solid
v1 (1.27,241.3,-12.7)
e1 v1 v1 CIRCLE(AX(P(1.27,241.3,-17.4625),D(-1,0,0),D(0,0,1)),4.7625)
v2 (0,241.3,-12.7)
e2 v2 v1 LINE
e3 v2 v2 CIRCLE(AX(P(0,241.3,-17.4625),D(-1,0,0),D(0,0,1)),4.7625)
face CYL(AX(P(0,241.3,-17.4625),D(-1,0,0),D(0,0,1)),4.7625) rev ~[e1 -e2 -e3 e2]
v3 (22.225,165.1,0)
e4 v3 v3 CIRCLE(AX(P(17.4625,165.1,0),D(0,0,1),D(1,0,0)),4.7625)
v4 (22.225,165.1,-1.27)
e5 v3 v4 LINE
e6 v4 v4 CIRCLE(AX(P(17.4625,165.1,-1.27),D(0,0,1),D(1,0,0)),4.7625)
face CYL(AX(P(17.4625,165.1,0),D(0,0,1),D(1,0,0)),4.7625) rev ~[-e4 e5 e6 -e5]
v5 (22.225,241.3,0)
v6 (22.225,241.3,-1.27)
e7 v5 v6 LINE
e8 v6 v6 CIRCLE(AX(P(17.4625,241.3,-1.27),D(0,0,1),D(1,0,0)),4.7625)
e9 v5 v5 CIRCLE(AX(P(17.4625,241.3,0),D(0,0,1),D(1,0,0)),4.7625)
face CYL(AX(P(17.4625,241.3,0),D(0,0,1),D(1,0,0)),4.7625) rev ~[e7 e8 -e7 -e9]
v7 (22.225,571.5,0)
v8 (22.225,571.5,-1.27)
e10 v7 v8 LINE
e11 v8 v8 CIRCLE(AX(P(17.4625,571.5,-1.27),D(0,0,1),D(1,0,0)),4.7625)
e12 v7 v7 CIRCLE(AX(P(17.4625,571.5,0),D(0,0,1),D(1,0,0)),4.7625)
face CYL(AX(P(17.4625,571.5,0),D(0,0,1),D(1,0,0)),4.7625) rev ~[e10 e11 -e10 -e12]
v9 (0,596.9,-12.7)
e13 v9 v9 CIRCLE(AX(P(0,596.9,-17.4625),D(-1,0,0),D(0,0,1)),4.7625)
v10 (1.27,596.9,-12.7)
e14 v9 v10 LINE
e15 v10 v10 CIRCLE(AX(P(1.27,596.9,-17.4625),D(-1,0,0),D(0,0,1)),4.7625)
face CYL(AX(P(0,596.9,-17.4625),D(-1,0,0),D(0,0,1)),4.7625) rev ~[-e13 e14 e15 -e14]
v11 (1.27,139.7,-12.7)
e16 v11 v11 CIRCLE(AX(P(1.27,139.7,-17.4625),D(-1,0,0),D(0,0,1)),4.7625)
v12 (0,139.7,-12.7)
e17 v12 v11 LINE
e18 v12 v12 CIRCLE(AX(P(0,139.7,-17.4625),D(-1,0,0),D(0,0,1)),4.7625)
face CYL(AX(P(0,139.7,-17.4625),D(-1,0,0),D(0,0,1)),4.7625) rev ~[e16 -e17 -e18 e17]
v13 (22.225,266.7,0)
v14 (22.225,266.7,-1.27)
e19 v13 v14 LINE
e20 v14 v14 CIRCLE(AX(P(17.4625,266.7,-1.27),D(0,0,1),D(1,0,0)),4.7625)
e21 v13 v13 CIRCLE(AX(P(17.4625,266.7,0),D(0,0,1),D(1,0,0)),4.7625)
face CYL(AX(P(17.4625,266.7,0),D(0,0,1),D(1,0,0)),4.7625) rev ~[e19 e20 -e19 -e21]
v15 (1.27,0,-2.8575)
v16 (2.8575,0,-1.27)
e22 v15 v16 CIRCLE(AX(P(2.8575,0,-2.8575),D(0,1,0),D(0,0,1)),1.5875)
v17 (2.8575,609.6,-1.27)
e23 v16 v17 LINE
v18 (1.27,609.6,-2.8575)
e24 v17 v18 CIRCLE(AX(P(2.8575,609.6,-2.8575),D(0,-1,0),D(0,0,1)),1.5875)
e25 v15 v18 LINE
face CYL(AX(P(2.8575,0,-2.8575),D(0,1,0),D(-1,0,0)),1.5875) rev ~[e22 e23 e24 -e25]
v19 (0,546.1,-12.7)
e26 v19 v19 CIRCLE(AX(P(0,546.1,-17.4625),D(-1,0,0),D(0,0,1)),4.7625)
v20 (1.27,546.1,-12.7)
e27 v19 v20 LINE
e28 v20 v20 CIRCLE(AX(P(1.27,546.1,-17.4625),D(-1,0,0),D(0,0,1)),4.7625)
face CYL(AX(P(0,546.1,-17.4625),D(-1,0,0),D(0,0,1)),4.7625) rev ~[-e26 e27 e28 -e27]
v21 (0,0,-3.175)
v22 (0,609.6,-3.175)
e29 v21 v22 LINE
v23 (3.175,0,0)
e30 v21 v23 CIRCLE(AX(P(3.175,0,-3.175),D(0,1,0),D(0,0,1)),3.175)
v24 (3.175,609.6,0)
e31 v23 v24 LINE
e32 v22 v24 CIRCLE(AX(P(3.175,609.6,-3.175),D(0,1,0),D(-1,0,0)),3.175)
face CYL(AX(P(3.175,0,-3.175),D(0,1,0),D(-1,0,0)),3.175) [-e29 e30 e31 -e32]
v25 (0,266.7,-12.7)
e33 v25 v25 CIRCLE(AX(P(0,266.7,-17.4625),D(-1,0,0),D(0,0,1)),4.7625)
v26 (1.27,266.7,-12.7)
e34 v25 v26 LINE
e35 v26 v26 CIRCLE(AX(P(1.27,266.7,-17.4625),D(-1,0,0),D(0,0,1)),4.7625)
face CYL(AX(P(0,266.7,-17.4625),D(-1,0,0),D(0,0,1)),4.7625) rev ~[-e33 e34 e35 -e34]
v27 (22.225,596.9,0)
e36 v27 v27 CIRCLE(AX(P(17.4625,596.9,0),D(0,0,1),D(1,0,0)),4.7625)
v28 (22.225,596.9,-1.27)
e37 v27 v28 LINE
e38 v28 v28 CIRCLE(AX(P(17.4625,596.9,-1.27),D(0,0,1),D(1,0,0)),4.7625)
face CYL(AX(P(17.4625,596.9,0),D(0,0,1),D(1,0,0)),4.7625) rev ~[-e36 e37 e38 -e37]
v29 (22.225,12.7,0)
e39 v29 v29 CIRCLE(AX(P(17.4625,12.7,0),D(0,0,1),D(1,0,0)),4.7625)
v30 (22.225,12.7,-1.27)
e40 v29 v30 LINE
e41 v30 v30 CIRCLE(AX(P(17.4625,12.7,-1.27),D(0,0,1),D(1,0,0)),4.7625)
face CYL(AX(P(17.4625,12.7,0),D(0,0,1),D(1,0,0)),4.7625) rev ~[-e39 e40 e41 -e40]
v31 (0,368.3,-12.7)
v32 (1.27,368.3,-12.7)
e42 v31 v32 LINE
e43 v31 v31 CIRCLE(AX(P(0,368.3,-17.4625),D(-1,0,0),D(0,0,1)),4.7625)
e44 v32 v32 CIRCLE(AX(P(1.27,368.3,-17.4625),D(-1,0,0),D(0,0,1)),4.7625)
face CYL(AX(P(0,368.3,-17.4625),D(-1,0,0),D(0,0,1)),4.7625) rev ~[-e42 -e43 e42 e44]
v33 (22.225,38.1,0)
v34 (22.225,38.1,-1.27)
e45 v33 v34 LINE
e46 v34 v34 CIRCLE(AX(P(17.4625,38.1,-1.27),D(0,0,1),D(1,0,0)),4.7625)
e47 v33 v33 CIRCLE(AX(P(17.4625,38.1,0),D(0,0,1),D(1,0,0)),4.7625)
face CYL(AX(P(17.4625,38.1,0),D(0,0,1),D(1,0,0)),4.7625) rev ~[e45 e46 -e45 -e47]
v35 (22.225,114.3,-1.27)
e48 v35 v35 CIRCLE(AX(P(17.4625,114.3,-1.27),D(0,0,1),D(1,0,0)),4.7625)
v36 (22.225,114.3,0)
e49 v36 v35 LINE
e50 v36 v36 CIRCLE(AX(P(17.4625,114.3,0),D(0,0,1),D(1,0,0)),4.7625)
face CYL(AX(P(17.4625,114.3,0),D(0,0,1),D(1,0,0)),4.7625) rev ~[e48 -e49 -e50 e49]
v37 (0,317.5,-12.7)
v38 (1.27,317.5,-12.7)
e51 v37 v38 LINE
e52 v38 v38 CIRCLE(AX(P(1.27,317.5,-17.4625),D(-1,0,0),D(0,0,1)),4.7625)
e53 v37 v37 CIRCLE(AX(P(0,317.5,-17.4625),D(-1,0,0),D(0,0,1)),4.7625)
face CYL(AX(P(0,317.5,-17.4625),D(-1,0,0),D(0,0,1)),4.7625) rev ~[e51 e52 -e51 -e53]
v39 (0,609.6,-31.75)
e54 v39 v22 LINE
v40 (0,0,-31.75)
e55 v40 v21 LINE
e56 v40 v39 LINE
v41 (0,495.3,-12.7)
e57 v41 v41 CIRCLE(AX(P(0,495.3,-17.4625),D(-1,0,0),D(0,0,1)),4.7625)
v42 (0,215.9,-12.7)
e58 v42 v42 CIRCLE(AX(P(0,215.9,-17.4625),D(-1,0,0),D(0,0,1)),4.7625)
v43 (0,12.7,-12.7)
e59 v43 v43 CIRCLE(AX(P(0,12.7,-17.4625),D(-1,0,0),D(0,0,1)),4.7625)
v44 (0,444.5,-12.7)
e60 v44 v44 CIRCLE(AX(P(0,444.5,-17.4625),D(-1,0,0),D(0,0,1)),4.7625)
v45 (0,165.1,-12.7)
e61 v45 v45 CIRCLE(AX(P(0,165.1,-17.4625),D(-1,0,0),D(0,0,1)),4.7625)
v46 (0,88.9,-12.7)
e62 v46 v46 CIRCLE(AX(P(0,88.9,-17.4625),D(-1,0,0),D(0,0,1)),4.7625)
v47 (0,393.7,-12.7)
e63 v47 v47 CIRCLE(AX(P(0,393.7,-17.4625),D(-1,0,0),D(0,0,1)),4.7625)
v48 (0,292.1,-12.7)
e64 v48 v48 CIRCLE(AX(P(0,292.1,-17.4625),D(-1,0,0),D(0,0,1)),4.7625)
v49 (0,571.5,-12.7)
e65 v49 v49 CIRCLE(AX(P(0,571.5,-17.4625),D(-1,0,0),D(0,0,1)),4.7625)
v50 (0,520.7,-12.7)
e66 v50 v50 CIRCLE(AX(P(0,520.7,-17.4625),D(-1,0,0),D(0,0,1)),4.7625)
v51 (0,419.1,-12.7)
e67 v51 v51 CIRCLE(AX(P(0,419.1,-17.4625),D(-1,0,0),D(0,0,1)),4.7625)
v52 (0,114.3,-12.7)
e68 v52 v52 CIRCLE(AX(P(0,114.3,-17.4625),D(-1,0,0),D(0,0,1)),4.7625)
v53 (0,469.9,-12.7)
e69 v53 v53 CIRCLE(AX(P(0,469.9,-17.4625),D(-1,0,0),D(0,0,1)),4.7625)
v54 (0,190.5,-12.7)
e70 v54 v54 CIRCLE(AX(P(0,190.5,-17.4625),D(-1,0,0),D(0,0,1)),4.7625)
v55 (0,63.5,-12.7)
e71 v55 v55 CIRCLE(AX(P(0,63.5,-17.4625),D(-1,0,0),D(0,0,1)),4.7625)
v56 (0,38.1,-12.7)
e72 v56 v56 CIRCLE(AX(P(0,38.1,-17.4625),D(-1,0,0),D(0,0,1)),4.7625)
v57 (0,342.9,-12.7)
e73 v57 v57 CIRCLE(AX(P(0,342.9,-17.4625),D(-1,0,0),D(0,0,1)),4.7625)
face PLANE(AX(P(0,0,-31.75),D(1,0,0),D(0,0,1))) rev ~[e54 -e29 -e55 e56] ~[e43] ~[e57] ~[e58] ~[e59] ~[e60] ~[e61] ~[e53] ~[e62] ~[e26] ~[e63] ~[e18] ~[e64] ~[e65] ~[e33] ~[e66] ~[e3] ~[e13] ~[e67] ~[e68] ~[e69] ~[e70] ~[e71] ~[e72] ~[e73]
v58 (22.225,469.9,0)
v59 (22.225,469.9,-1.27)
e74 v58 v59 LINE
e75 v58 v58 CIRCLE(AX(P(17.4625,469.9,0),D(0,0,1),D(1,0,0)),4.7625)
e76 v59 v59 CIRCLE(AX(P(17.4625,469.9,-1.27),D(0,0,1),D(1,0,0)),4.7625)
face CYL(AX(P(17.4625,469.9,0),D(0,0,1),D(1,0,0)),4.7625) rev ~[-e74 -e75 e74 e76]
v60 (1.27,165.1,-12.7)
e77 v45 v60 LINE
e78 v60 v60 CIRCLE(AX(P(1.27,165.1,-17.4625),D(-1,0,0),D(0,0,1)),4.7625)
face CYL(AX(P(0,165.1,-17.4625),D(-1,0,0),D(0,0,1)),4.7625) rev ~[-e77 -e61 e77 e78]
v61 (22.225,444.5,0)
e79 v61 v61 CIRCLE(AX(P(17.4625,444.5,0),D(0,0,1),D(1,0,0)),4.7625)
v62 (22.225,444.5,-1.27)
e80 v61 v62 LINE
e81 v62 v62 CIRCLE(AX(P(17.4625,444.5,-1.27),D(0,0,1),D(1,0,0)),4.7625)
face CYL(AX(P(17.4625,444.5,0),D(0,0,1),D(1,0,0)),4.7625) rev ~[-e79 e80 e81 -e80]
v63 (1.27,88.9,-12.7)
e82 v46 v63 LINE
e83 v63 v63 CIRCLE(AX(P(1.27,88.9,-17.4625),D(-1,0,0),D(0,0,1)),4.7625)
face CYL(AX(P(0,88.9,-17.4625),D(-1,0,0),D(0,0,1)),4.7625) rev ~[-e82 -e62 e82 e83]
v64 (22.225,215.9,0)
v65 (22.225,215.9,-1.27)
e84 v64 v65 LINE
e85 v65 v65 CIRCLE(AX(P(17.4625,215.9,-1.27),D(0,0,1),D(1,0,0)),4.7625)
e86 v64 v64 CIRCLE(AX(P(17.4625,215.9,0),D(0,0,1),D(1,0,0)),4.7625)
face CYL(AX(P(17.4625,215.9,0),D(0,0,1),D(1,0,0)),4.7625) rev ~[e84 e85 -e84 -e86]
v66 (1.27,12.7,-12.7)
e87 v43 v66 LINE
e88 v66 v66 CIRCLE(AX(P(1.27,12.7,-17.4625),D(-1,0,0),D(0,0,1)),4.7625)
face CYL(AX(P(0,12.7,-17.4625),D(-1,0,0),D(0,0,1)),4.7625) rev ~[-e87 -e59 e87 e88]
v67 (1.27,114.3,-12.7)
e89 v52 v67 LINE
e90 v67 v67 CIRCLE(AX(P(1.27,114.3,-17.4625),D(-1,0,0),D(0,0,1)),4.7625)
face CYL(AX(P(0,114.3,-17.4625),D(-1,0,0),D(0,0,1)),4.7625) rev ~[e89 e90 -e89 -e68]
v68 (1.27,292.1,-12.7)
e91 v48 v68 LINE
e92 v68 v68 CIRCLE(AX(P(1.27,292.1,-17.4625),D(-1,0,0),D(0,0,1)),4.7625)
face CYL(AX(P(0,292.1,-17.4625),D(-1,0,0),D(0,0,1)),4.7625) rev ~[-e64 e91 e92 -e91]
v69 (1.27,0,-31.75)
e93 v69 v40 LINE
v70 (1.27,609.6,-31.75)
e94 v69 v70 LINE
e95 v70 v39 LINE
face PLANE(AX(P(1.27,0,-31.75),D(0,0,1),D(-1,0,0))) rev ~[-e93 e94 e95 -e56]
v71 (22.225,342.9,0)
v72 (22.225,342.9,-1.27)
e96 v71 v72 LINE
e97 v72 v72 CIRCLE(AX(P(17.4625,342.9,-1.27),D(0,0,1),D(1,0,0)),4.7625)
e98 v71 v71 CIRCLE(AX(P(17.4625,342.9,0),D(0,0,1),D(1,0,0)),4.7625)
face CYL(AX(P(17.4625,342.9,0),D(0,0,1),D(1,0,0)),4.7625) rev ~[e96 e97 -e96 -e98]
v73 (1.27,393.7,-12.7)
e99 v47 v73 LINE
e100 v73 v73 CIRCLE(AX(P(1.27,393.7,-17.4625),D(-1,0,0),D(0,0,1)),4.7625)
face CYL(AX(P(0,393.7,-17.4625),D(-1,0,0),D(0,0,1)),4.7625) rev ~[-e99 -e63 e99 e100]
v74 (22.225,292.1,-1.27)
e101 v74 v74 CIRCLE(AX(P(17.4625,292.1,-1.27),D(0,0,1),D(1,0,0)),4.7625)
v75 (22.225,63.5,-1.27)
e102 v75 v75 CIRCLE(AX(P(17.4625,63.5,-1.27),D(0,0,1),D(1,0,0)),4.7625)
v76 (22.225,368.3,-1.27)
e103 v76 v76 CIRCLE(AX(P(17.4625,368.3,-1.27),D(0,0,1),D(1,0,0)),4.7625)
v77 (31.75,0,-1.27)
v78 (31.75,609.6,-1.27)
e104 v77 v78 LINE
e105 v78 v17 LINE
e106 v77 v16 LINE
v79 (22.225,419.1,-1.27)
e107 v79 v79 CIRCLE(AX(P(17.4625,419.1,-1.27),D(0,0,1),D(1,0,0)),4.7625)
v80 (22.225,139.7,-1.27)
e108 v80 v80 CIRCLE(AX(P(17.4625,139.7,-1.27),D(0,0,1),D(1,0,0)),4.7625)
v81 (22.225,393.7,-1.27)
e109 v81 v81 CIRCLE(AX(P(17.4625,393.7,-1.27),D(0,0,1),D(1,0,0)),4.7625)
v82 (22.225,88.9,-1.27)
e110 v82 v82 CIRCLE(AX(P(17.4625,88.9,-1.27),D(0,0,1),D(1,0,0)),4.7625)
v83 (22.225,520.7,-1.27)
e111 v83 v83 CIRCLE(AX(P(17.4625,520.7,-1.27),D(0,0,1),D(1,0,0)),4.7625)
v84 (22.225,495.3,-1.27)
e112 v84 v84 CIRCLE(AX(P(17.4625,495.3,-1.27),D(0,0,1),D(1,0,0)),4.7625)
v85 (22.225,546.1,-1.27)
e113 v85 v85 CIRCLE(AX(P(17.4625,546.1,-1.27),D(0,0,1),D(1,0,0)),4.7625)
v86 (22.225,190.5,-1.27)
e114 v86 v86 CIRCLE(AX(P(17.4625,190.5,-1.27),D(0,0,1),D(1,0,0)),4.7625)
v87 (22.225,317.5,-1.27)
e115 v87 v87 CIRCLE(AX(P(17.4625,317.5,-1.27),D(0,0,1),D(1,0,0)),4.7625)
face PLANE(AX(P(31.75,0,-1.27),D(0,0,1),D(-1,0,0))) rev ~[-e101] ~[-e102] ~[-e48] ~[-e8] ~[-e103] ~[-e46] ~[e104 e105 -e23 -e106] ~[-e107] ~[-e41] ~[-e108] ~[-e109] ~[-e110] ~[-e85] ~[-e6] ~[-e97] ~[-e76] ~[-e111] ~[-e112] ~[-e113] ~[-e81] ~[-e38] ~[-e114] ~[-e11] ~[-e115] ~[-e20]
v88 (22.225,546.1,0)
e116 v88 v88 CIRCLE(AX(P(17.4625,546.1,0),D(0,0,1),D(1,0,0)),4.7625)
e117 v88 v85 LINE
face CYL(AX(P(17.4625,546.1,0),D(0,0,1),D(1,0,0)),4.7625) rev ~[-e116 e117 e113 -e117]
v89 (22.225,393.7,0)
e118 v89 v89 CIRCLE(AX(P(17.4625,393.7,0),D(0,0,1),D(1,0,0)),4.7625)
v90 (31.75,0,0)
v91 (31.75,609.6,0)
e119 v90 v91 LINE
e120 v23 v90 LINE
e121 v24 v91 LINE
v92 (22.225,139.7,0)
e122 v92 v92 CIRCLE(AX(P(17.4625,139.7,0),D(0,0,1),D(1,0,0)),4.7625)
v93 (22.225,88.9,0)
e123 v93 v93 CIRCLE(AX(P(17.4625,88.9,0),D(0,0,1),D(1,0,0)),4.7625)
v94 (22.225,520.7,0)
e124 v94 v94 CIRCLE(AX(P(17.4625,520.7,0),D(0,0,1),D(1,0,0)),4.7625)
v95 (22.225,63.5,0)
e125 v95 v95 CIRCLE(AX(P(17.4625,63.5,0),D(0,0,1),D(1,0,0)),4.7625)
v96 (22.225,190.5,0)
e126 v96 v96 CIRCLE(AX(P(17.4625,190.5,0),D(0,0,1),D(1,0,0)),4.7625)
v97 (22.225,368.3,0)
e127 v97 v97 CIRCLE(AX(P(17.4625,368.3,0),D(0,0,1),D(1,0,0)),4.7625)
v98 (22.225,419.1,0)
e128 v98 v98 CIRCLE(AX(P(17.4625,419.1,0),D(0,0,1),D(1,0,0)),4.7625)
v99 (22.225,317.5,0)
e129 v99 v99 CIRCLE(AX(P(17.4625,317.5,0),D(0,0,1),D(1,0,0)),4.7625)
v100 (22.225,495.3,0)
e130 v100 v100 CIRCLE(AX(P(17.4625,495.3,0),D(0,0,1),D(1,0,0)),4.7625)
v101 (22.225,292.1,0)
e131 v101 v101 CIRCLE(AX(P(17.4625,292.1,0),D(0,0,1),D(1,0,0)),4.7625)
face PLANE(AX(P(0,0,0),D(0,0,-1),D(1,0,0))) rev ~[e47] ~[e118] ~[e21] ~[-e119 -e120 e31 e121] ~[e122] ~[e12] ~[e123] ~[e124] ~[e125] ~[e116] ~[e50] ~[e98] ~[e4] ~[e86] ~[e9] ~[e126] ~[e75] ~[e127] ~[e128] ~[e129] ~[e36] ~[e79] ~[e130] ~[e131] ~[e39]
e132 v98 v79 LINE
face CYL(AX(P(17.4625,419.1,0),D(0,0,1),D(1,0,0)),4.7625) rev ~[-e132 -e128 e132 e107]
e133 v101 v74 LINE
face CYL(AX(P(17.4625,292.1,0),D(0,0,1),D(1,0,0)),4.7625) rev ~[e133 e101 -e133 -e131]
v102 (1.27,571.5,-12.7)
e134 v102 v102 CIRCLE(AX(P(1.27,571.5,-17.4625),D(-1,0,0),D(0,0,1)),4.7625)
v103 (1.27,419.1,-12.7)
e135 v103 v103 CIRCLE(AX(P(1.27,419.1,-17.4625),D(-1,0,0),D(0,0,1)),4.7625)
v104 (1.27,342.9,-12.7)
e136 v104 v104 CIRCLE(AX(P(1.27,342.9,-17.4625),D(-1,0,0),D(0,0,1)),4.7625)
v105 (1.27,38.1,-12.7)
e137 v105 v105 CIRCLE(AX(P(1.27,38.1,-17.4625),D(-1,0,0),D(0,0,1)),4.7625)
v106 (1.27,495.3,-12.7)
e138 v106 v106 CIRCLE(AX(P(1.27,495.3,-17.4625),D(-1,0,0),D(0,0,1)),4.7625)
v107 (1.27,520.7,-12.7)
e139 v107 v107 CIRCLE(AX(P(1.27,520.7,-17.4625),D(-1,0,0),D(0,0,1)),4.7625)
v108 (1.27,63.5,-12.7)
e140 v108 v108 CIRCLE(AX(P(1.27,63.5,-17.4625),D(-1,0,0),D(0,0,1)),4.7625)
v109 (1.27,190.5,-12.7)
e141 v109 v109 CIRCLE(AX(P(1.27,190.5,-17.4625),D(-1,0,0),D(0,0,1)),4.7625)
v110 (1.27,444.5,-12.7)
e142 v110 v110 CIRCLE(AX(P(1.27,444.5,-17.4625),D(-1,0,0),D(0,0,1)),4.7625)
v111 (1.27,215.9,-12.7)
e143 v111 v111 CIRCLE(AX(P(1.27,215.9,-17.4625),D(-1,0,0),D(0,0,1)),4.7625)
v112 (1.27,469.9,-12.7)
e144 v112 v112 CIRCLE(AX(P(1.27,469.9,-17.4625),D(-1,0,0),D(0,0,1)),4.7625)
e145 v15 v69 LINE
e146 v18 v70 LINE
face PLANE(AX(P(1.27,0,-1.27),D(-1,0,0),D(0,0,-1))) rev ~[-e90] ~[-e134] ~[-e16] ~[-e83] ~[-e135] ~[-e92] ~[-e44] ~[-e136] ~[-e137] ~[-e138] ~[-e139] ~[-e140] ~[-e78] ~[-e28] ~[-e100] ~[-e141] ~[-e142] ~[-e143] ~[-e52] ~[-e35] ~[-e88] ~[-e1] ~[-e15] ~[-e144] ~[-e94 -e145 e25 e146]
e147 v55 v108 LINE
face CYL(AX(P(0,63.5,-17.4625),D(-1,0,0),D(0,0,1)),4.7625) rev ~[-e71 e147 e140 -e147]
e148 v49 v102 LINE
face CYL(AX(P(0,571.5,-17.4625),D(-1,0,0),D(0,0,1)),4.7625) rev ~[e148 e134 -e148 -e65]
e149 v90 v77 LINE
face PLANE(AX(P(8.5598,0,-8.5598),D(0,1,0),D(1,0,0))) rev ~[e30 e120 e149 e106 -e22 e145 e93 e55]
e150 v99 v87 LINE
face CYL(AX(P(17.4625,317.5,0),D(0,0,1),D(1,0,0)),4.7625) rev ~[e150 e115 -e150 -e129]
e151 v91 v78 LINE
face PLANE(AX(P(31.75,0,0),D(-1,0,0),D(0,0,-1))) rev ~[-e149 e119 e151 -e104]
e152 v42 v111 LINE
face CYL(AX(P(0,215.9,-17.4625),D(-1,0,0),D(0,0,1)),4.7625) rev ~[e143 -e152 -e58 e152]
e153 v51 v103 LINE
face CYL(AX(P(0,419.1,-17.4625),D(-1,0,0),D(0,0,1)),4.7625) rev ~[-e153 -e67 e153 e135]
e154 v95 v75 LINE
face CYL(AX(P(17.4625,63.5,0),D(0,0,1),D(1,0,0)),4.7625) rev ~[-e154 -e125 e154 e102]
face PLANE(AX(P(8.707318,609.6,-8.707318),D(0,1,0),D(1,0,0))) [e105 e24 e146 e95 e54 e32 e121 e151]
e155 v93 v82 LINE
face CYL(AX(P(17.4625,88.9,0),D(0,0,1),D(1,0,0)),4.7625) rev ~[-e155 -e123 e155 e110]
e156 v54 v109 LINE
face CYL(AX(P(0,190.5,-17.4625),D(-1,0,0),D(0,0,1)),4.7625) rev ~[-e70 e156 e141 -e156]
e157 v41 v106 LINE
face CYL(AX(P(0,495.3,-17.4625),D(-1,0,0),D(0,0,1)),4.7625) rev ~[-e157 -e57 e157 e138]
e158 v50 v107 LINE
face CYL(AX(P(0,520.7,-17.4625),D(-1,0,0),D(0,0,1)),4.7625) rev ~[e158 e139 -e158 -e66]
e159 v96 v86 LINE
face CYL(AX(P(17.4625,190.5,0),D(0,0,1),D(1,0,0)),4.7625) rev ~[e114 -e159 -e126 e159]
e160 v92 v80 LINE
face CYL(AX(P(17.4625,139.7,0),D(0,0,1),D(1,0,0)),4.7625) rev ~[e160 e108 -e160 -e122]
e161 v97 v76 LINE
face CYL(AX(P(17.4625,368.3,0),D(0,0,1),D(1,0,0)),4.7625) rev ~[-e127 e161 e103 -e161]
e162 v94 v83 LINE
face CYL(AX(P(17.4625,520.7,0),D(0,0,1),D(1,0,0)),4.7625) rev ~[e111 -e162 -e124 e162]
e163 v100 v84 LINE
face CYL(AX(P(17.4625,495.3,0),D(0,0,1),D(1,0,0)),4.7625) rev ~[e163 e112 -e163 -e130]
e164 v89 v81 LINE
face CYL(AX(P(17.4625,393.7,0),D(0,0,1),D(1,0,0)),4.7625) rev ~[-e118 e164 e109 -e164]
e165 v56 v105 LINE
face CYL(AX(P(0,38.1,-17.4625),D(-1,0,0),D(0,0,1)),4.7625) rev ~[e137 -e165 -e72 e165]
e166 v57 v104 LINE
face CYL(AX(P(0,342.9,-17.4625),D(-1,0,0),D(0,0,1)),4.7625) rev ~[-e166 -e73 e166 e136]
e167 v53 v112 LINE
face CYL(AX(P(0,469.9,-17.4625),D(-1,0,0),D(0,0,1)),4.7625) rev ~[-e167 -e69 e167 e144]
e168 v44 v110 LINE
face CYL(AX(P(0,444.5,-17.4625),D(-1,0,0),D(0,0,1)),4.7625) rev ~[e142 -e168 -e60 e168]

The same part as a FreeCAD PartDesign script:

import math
import FreeCAD as App
import Part
import Sketcher
Q = App.Units.Quantity


def edges_at(feature, points):
    """Names of the edges that pass closest to the given points."""
    edges = feature.Shape.Edges
    near = lambda p: min(range(len(edges)), key=lambda i: edges[i].distToShape(Part.Vertex(*p))[0])
    return sorted({f"Edge{near(p) + 1}" for p in points})

doc = App.newDocument("Part")
params = doc.addObject("Spreadsheet::Sheet", "Params")
for row, (alias, value) in enumerate([
    ("sketch1_width", "1.2 in"),
    ("sketch1_width2", "0.05 in"),
    ("pad1_length", "48 in"),
    ("sketch2_diameter", "0.375 in"),
    ("pocket1_length", "0.05 in"),
    ("sketch3_diameter", "0.375 in"),
    ("pocket2_length", "0.05 in"),
    ("fillet_radius", "0.125 in"),
    ("fillet2_radius", "0.0625 in"),
    ("sketch4_radius", "0.125 in"),
    ("sketch4_radius2", "0.0625 in"),
    ("sketch4_width", "0.05 in"),
    ("pocket3_length", "24 in"),
], start=1):
    params.set(f"A{row}", alias)
    params.set(f"B{row}", "=" + value)
    params.setAlias(f"B{row}", alias)

body = doc.addObject("PartDesign::Body", "Body")

# Sketch on XZ plane
sketch1 = doc.addObject("Sketcher::SketchObject", "Sketch")
body.addObject(sketch1)
sketch1.AttachmentSupport = (doc.XZ_Plane, [""])
sketch1.MapMode = "FlatFace"
sketch1.addGeometry([
    Part.LineSegment(App.Vector(1.3, -1.3, 0), App.Vector(1.3, -31.8, 0)),  # 0
    Part.LineSegment(App.Vector(1.3, -31.8, 0), App.Vector(0, -31.8, 0)),  # 1
    Part.LineSegment(App.Vector(0, -31.8, 0), App.Vector(0, 0, 0)),  # 2
    Part.LineSegment(App.Vector(0, 0, 0), App.Vector(31.8, 0, 0)),  # 3
    Part.LineSegment(App.Vector(31.8, 0, 0), App.Vector(31.8, -1.3, 0)),  # 4
    Part.LineSegment(App.Vector(31.8, -1.3, 0), App.Vector(1.3, -1.3, 0)),  # 5
], False)
sketch1.addConstraint([
    Sketcher.Constraint("Coincident", 0, 2, 1, 1),
    Sketcher.Constraint("Coincident", 1, 2, 2, 1),
    Sketcher.Constraint("Coincident", 2, 2, 3, 1),
    Sketcher.Constraint("Coincident", 3, 2, 4, 1),
    Sketcher.Constraint("Coincident", 4, 2, 5, 1),
    Sketcher.Constraint("Coincident", 5, 2, 0, 1),
    Sketcher.Constraint("Vertical", 0),
    Sketcher.Constraint("Horizontal", 1),
    Sketcher.Constraint("Vertical", 2),
    Sketcher.Constraint("Horizontal", 3),
    Sketcher.Constraint("Vertical", 4),
    Sketcher.Constraint("Horizontal", 5),
    Sketcher.Constraint("Coincident", 2, 2, -1, 1),
    Sketcher.Constraint("Equal", 5, 0),
    Sketcher.Constraint("Equal", 3, 2),
    Sketcher.Constraint("DistanceX", 5, 2, 5, 1, Q("1.2 in")),
    Sketcher.Constraint("DistanceX", 1, 2, 1, 1, Q("0.05 in")),
])
sketch1.setExpression("Constraints[15]", "Params.sketch1_width")
sketch1.setExpression("Constraints[16]", "Params.sketch1_width2")
pad1 = doc.addObject("PartDesign::Pad", "Pad")
body.addObject(pad1)
pad1.Profile = sketch1
pad1.setExpression("Length", "Params.pad1_length")
pad1.Reversed = True

# Sketch on YZ plane
sketch2 = doc.addObject("Sketcher::SketchObject", "Sketch001")
body.addObject(sketch2)
sketch2.AttachmentSupport = (doc.YZ_Plane, [""])
sketch2.MapMode = "FlatFace"
sketch2.addGeometry([
    Part.Circle(App.Vector(12.7, -17.5, 0), App.Vector(0, 0, 1), 4.8),  # 0
    Part.Circle(App.Vector(38.1, -17.5, 0), App.Vector(0, 0, 1), 4.8),  # 1
    Part.Circle(App.Vector(63.5, -17.5, 0), App.Vector(0, 0, 1), 4.8),  # 2
    Part.Circle(App.Vector(88.9, -17.5, 0), App.Vector(0, 0, 1), 4.8),  # 3
    Part.Circle(App.Vector(114.3, -17.5, 0), App.Vector(0, 0, 1), 4.8),  # 4
    Part.Circle(App.Vector(139.7, -17.5, 0), App.Vector(0, 0, 1), 4.8),  # 5
    Part.Circle(App.Vector(165.1, -17.5, 0), App.Vector(0, 0, 1), 4.8),  # 6
    Part.Circle(App.Vector(190.5, -17.5, 0), App.Vector(0, 0, 1), 4.8),  # 7
    Part.Circle(App.Vector(215.9, -17.5, 0), App.Vector(0, 0, 1), 4.8),  # 8
    Part.Circle(App.Vector(241.3, -17.5, 0), App.Vector(0, 0, 1), 4.8),  # 9
    Part.Circle(App.Vector(266.7, -17.5, 0), App.Vector(0, 0, 1), 4.8),  # 10
    Part.Circle(App.Vector(292.1, -17.5, 0), App.Vector(0, 0, 1), 4.8),  # 11
    Part.Circle(App.Vector(317.5, -17.5, 0), App.Vector(0, 0, 1), 4.8),  # 12
    Part.Circle(App.Vector(342.9, -17.5, 0), App.Vector(0, 0, 1), 4.8),  # 13
    Part.Circle(App.Vector(368.3, -17.5, 0), App.Vector(0, 0, 1), 4.8),  # 14
    Part.Circle(App.Vector(393.7, -17.5, 0), App.Vector(0, 0, 1), 4.8),  # 15
    Part.Circle(App.Vector(419.1, -17.5, 0), App.Vector(0, 0, 1), 4.8),  # 16
    Part.Circle(App.Vector(444.5, -17.5, 0), App.Vector(0, 0, 1), 4.8),  # 17
    Part.Circle(App.Vector(469.9, -17.5, 0), App.Vector(0, 0, 1), 4.8),  # 18
    Part.Circle(App.Vector(495.3, -17.5, 0), App.Vector(0, 0, 1), 4.8),  # 19
    Part.Circle(App.Vector(520.7, -17.5, 0), App.Vector(0, 0, 1), 4.8),  # 20
    Part.Circle(App.Vector(546.1, -17.5, 0), App.Vector(0, 0, 1), 4.8),  # 21
    Part.Circle(App.Vector(571.5, -17.5, 0), App.Vector(0, 0, 1), 4.8),  # 22
    Part.Circle(App.Vector(596.9, -17.5, 0), App.Vector(0, 0, 1), 4.8),  # 23
    Part.Circle(App.Vector(622.3, -17.5, 0), App.Vector(0, 0, 1), 4.8),  # 24
    Part.Circle(App.Vector(647.7, -17.5, 0), App.Vector(0, 0, 1), 4.8),  # 25
    Part.Circle(App.Vector(673.1, -17.5, 0), App.Vector(0, 0, 1), 4.8),  # 26
    Part.Circle(App.Vector(698.5, -17.5, 0), App.Vector(0, 0, 1), 4.8),  # 27
    Part.Circle(App.Vector(723.9, -17.5, 0), App.Vector(0, 0, 1), 4.8),  # 28
    Part.Circle(App.Vector(749.3, -17.5, 0), App.Vector(0, 0, 1), 4.8),  # 29
    Part.Circle(App.Vector(774.7, -17.5, 0), App.Vector(0, 0, 1), 4.8),  # 30
    Part.Circle(App.Vector(800.1, -17.5, 0), App.Vector(0, 0, 1), 4.8),  # 31
    Part.Circle(App.Vector(825.5, -17.5, 0), App.Vector(0, 0, 1), 4.8),  # 32
    Part.Circle(App.Vector(850.9, -17.5, 0), App.Vector(0, 0, 1), 4.8),  # 33
    Part.Circle(App.Vector(876.3, -17.5, 0), App.Vector(0, 0, 1), 4.8),  # 34
    Part.Circle(App.Vector(901.7, -17.5, 0), App.Vector(0, 0, 1), 4.8),  # 35
    Part.Circle(App.Vector(927.1, -17.5, 0), App.Vector(0, 0, 1), 4.8),  # 36
    Part.Circle(App.Vector(952.5, -17.5, 0), App.Vector(0, 0, 1), 4.8),  # 37
    Part.Circle(App.Vector(977.9, -17.5, 0), App.Vector(0, 0, 1), 4.8),  # 38
    Part.Circle(App.Vector(1003.3, -17.5, 0), App.Vector(0, 0, 1), 4.8),  # 39
    Part.Circle(App.Vector(1028.7, -17.5, 0), App.Vector(0, 0, 1), 4.8),  # 40
    Part.Circle(App.Vector(1054.1, -17.5, 0), App.Vector(0, 0, 1), 4.8),  # 41
    Part.Circle(App.Vector(1079.5, -17.5, 0), App.Vector(0, 0, 1), 4.8),  # 42
    Part.Circle(App.Vector(1104.9, -17.5, 0), App.Vector(0, 0, 1), 4.8),  # 43
    Part.Circle(App.Vector(1130.3, -17.5, 0), App.Vector(0, 0, 1), 4.8),  # 44
    Part.Circle(App.Vector(1155.7, -17.5, 0), App.Vector(0, 0, 1), 4.8),  # 45
    Part.Circle(App.Vector(1181.1, -17.5, 0), App.Vector(0, 0, 1), 4.8),  # 46
    Part.Circle(App.Vector(1206.5, -17.5, 0), App.Vector(0, 0, 1), 4.8),  # 47
], False)
sketch2.addConstraint([
    Sketcher.Constraint("Equal", 0, 1),
    Sketcher.Constraint("Equal", 1, 2),
    Sketcher.Constraint("Equal", 2, 3),
    Sketcher.Constraint("Equal", 3, 4),
    Sketcher.Constraint("Equal", 4, 5),
    Sketcher.Constraint("Equal", 5, 6),
    Sketcher.Constraint("Equal", 6, 7),
    Sketcher.Constraint("Equal", 7, 8),
    Sketcher.Constraint("Equal", 8, 9),
    Sketcher.Constraint("Equal", 9, 10),
    Sketcher.Constraint("Equal", 10, 11),
    Sketcher.Constraint("Equal", 11, 12),
    Sketcher.Constraint("Equal", 12, 13),
    Sketcher.Constraint("Equal", 13, 14),
    Sketcher.Constraint("Equal", 14, 15),
    Sketcher.Constraint("Equal", 15, 16),
    Sketcher.Constraint("Equal", 16, 17),
    Sketcher.Constraint("Equal", 17, 18),
    Sketcher.Constraint("Equal", 18, 19),
    Sketcher.Constraint("Equal", 19, 20),
    Sketcher.Constraint("Equal", 20, 21),
    Sketcher.Constraint("Equal", 21, 22),
    Sketcher.Constraint("Equal", 22, 23),
    Sketcher.Constraint("Equal", 23, 24),
    Sketcher.Constraint("Equal", 24, 25),
    Sketcher.Constraint("Equal", 25, 26),
    Sketcher.Constraint("Equal", 26, 27),
    Sketcher.Constraint("Equal", 27, 28),
    Sketcher.Constraint("Equal", 28, 29),
    Sketcher.Constraint("Equal", 29, 30),
    Sketcher.Constraint("Equal", 30, 31),
    Sketcher.Constraint("Equal", 31, 32),
    Sketcher.Constraint("Equal", 32, 33),
    Sketcher.Constraint("Equal", 33, 34),
    Sketcher.Constraint("Equal", 34, 35),
    Sketcher.Constraint("Equal", 35, 36),
    Sketcher.Constraint("Equal", 36, 37),
    Sketcher.Constraint("Equal", 37, 38),
    Sketcher.Constraint("Equal", 38, 39),
    Sketcher.Constraint("Equal", 39, 40),
    Sketcher.Constraint("Equal", 40, 41),
    Sketcher.Constraint("Equal", 41, 42),
    Sketcher.Constraint("Equal", 42, 43),
    Sketcher.Constraint("Equal", 43, 44),
    Sketcher.Constraint("Equal", 44, 45),
    Sketcher.Constraint("Equal", 45, 46),
    Sketcher.Constraint("Equal", 46, 47),
    Sketcher.Constraint("Horizontal", 0, 3, 1, 3),
    Sketcher.Constraint("Horizontal", 1, 3, 2, 3),
    Sketcher.Constraint("Horizontal", 2, 3, 3, 3),
    Sketcher.Constraint("Horizontal", 3, 3, 4, 3),
    Sketcher.Constraint("Horizontal", 4, 3, 5, 3),
    Sketcher.Constraint("Horizontal", 5, 3, 6, 3),
    Sketcher.Constraint("Horizontal", 6, 3, 7, 3),
    Sketcher.Constraint("Horizontal", 7, 3, 8, 3),
    Sketcher.Constraint("Horizontal", 8, 3, 9, 3),
    Sketcher.Constraint("Horizontal", 9, 3, 10, 3),
    Sketcher.Constraint("Horizontal", 10, 3, 11, 3),
    Sketcher.Constraint("Horizontal", 11, 3, 12, 3),
    Sketcher.Constraint("Horizontal", 12, 3, 13, 3),
    Sketcher.Constraint("Horizontal", 13, 3, 14, 3),
    Sketcher.Constraint("Horizontal", 14, 3, 15, 3),
    Sketcher.Constraint("Horizontal", 15, 3, 16, 3),
    Sketcher.Constraint("Horizontal", 16, 3, 17, 3),
    Sketcher.Constraint("Horizontal", 17, 3, 18, 3),
    Sketcher.Constraint("Horizontal", 18, 3, 19, 3),
    Sketcher.Constraint("Horizontal", 19, 3, 20, 3),
    Sketcher.Constraint("Horizontal", 20, 3, 21, 3),
    Sketcher.Constraint("Horizontal", 21, 3, 22, 3),
    Sketcher.Constraint("Horizontal", 22, 3, 23, 3),
    Sketcher.Constraint("Horizontal", 23, 3, 24, 3),
    Sketcher.Constraint("Horizontal", 24, 3, 25, 3),
    Sketcher.Constraint("Horizontal", 25, 3, 26, 3),
    Sketcher.Constraint("Horizontal", 26, 3, 27, 3),
    Sketcher.Constraint("Horizontal", 27, 3, 28, 3),
    Sketcher.Constraint("Horizontal", 28, 3, 29, 3),
    Sketcher.Constraint("Horizontal", 29, 3, 30, 3),
    Sketcher.Constraint("Horizontal", 30, 3, 31, 3),
    Sketcher.Constraint("Horizontal", 31, 3, 32, 3),
    Sketcher.Constraint("Horizontal", 32, 3, 33, 3),
    Sketcher.Constraint("Horizontal", 33, 3, 34, 3),
    Sketcher.Constraint("Horizontal", 34, 3, 35, 3),
    Sketcher.Constraint("Horizontal", 35, 3, 36, 3),
    Sketcher.Constraint("Horizontal", 36, 3, 37, 3),
    Sketcher.Constraint("Horizontal", 37, 3, 38, 3),
    Sketcher.Constraint("Horizontal", 38, 3, 39, 3),
    Sketcher.Constraint("Horizontal", 39, 3, 40, 3),
    Sketcher.Constraint("Horizontal", 40, 3, 41, 3),
    Sketcher.Constraint("Horizontal", 41, 3, 42, 3),
    Sketcher.Constraint("Horizontal", 42, 3, 43, 3),
    Sketcher.Constraint("Horizontal", 43, 3, 44, 3),
    Sketcher.Constraint("Horizontal", 44, 3, 45, 3),
    Sketcher.Constraint("Horizontal", 45, 3, 46, 3),
    Sketcher.Constraint("Horizontal", 46, 3, 47, 3),
    Sketcher.Constraint("Diameter", 0, Q("0.375 in")),
    Sketcher.Constraint("DistanceX", 0, 3, 1, 3, Q("1 in")),
    Sketcher.Constraint("DistanceX", 1, 3, 2, 3, Q("1 in")),
    Sketcher.Constraint("DistanceX", 2, 3, 3, 3, Q("1 in")),
    Sketcher.Constraint("DistanceX", 3, 3, 4, 3, Q("1 in")),
    Sketcher.Constraint("DistanceX", 4, 3, 5, 3, Q("1 in")),
    Sketcher.Constraint("DistanceX", 5, 3, 6, 3, Q("1 in")),
    Sketcher.Constraint("DistanceX", 6, 3, 7, 3, Q("1 in")),
    Sketcher.Constraint("DistanceX", 7, 3, 8, 3, Q("1 in")),
    Sketcher.Constraint("DistanceX", 8, 3, 9, 3, Q("1 in")),
    Sketcher.Constraint("DistanceX", 9, 3, 10, 3, Q("1 in")),
    Sketcher.Constraint("DistanceX", 10, 3, 11, 3, Q("1 in")),
    Sketcher.Constraint("DistanceX", 11, 3, 12, 3, Q("1 in")),
    Sketcher.Constraint("DistanceX", 12, 3, 13, 3, Q("1 in")),
    Sketcher.Constraint("DistanceX", 13, 3, 14, 3, Q("1 in")),
    Sketcher.Constraint("DistanceX", 14, 3, 15, 3, Q("1 in")),
    Sketcher.Constraint("DistanceX", 15, 3, 16, 3, Q("1 in")),
    Sketcher.Constraint("DistanceX", 16, 3, 17, 3, Q("1 in")),
    Sketcher.Constraint("DistanceX", 17, 3, 18, 3, Q("1 in")),
    Sketcher.Constraint("DistanceX", 18, 3, 19, 3, Q("1 in")),
    Sketcher.Constraint("DistanceX", 19, 3, 20, 3, Q("1 in")),
    Sketcher.Constraint("DistanceX", 20, 3, 21, 3, Q("1 in")),
    Sketcher.Constraint("DistanceX", 21, 3, 22, 3, Q("1 in")),
    Sketcher.Constraint("DistanceX", 22, 3, 23, 3, Q("1 in")),
    Sketcher.Constraint("DistanceX", 23, 3, 24, 3, Q("1 in")),
    Sketcher.Constraint("DistanceX", 24, 3, 25, 3, Q("1 in")),
    Sketcher.Constraint("DistanceX", 25, 3, 26, 3, Q("1 in")),
    Sketcher.Constraint("DistanceX", 26, 3, 27, 3, Q("1 in")),
    Sketcher.Constraint("DistanceX", 27, 3, 28, 3, Q("1 in")),
    Sketcher.Constraint("DistanceX", 28, 3, 29, 3, Q("1 in")),
    Sketcher.Constraint("DistanceX", 29, 3, 30, 3, Q("1 in")),
    Sketcher.Constraint("DistanceX", 30, 3, 31, 3, Q("1 in")),
    Sketcher.Constraint("DistanceX", 31, 3, 32, 3, Q("1 in")),
    Sketcher.Constraint("DistanceX", 32, 3, 33, 3, Q("1 in")),
    Sketcher.Constraint("DistanceX", 33, 3, 34, 3, Q("1 in")),
    Sketcher.Constraint("DistanceX", 34, 3, 35, 3, Q("1 in")),
    Sketcher.Constraint("DistanceX", 35, 3, 36, 3, Q("1 in")),
    Sketcher.Constraint("DistanceX", 36, 3, 37, 3, Q("1 in")),
    Sketcher.Constraint("DistanceX", 37, 3, 38, 3, Q("1 in")),
    Sketcher.Constraint("DistanceX", 38, 3, 39, 3, Q("1 in")),
    Sketcher.Constraint("DistanceX", 39, 3, 40, 3, Q("1 in")),
    Sketcher.Constraint("DistanceX", 40, 3, 41, 3, Q("1 in")),
    Sketcher.Constraint("DistanceX", 41, 3, 42, 3, Q("1 in")),
    Sketcher.Constraint("DistanceX", 42, 3, 43, 3, Q("1 in")),
    Sketcher.Constraint("DistanceX", 43, 3, 44, 3, Q("1 in")),
    Sketcher.Constraint("DistanceX", 44, 3, 45, 3, Q("1 in")),
    Sketcher.Constraint("DistanceX", 45, 3, 46, 3, Q("1 in")),
    Sketcher.Constraint("DistanceX", 46, 3, 47, 3, Q("1 in")),
    Sketcher.Constraint("DistanceX", -1, 1, 0, 3, Q("0.5 in")),
    Sketcher.Constraint("DistanceY", 0, 3, -1, 1, Q("0.6875 in")),
])
sketch2.setExpression("Constraints[94]", "Params.sketch2_diameter")
pocket1 = doc.addObject("PartDesign::Pocket", "Pocket")
body.addObject(pocket1)
pocket1.Profile = sketch2
pocket1.setExpression("Length", "Params.pocket1_length")
pocket1.Reversed = True

# Sketch on XY plane
sketch3 = doc.addObject("Sketcher::SketchObject", "Sketch002")
body.addObject(sketch3)
sketch3.AttachmentSupport = (doc.XY_Plane, [""])
sketch3.MapMode = "FlatFace"
sketch3.addGeometry([
    Part.Circle(App.Vector(17.5, 1206.5, 0), App.Vector(0, 0, 1), 4.8),  # 0
    Part.Circle(App.Vector(17.5, 1181.1, 0), App.Vector(0, 0, 1), 4.8),  # 1
    Part.Circle(App.Vector(17.5, 1155.7, 0), App.Vector(0, 0, 1), 4.8),  # 2
    Part.Circle(App.Vector(17.5, 1130.3, 0), App.Vector(0, 0, 1), 4.8),  # 3
    Part.Circle(App.Vector(17.5, 1104.9, 0), App.Vector(0, 0, 1), 4.8),  # 4
    Part.Circle(App.Vector(17.5, 1079.5, 0), App.Vector(0, 0, 1), 4.8),  # 5
    Part.Circle(App.Vector(17.5, 1054.1, 0), App.Vector(0, 0, 1), 4.8),  # 6
    Part.Circle(App.Vector(17.5, 1028.7, 0), App.Vector(0, 0, 1), 4.8),  # 7
    Part.Circle(App.Vector(17.5, 1003.3, 0), App.Vector(0, 0, 1), 4.8),  # 8
    Part.Circle(App.Vector(17.5, 977.9, 0), App.Vector(0, 0, 1), 4.8),  # 9
    Part.Circle(App.Vector(17.5, 952.5, 0), App.Vector(0, 0, 1), 4.8),  # 10
    Part.Circle(App.Vector(17.5, 927.1, 0), App.Vector(0, 0, 1), 4.8),  # 11
    Part.Circle(App.Vector(17.5, 901.7, 0), App.Vector(0, 0, 1), 4.8),  # 12
    Part.Circle(App.Vector(17.5, 876.3, 0), App.Vector(0, 0, 1), 4.8),  # 13
    Part.Circle(App.Vector(17.5, 850.9, 0), App.Vector(0, 0, 1), 4.8),  # 14
    Part.Circle(App.Vector(17.5, 825.5, 0), App.Vector(0, 0, 1), 4.8),  # 15
    Part.Circle(App.Vector(17.5, 800.1, 0), App.Vector(0, 0, 1), 4.8),  # 16
    Part.Circle(App.Vector(17.5, 774.7, 0), App.Vector(0, 0, 1), 4.8),  # 17
    Part.Circle(App.Vector(17.5, 749.3, 0), App.Vector(0, 0, 1), 4.8),  # 18
    Part.Circle(App.Vector(17.5, 723.9, 0), App.Vector(0, 0, 1), 4.8),  # 19
    Part.Circle(App.Vector(17.5, 698.5, 0), App.Vector(0, 0, 1), 4.8),  # 20
    Part.Circle(App.Vector(17.5, 673.1, 0), App.Vector(0, 0, 1), 4.8),  # 21
    Part.Circle(App.Vector(17.5, 647.7, 0), App.Vector(0, 0, 1), 4.8),  # 22
    Part.Circle(App.Vector(17.5, 622.3, 0), App.Vector(0, 0, 1), 4.8),  # 23
    Part.Circle(App.Vector(17.5, 596.9, 0), App.Vector(0, 0, 1), 4.8),  # 24
    Part.Circle(App.Vector(17.5, 571.5, 0), App.Vector(0, 0, 1), 4.8),  # 25
    Part.Circle(App.Vector(17.5, 546.1, 0), App.Vector(0, 0, 1), 4.8),  # 26
    Part.Circle(App.Vector(17.5, 520.7, 0), App.Vector(0, 0, 1), 4.8),  # 27
    Part.Circle(App.Vector(17.5, 495.3, 0), App.Vector(0, 0, 1), 4.8),  # 28
    Part.Circle(App.Vector(17.5, 469.9, 0), App.Vector(0, 0, 1), 4.8),  # 29
    Part.Circle(App.Vector(17.5, 444.5, 0), App.Vector(0, 0, 1), 4.8),  # 30
    Part.Circle(App.Vector(17.5, 419.1, 0), App.Vector(0, 0, 1), 4.8),  # 31
    Part.Circle(App.Vector(17.5, 393.7, 0), App.Vector(0, 0, 1), 4.8),  # 32
    Part.Circle(App.Vector(17.5, 368.3, 0), App.Vector(0, 0, 1), 4.8),  # 33
    Part.Circle(App.Vector(17.5, 342.9, 0), App.Vector(0, 0, 1), 4.8),  # 34
    Part.Circle(App.Vector(17.5, 317.5, 0), App.Vector(0, 0, 1), 4.8),  # 35
    Part.Circle(App.Vector(17.5, 292.1, 0), App.Vector(0, 0, 1), 4.8),  # 36
    Part.Circle(App.Vector(17.5, 266.7, 0), App.Vector(0, 0, 1), 4.8),  # 37
    Part.Circle(App.Vector(17.5, 241.3, 0), App.Vector(0, 0, 1), 4.8),  # 38
    Part.Circle(App.Vector(17.5, 215.9, 0), App.Vector(0, 0, 1), 4.8),  # 39
    Part.Circle(App.Vector(17.5, 190.5, 0), App.Vector(0, 0, 1), 4.8),  # 40
    Part.Circle(App.Vector(17.5, 165.1, 0), App.Vector(0, 0, 1), 4.8),  # 41
    Part.Circle(App.Vector(17.5, 139.7, 0), App.Vector(0, 0, 1), 4.8),  # 42
    Part.Circle(App.Vector(17.5, 114.3, 0), App.Vector(0, 0, 1), 4.8),  # 43
    Part.Circle(App.Vector(17.5, 88.9, 0), App.Vector(0, 0, 1), 4.8),  # 44
    Part.Circle(App.Vector(17.5, 63.5, 0), App.Vector(0, 0, 1), 4.8),  # 45
    Part.Circle(App.Vector(17.5, 38.1, 0), App.Vector(0, 0, 1), 4.8),  # 46
    Part.Circle(App.Vector(17.5, 12.7, 0), App.Vector(0, 0, 1), 4.8),  # 47
], False)
sketch3.addConstraint([
    Sketcher.Constraint("Equal", 0, 1),
    Sketcher.Constraint("Equal", 1, 2),
    Sketcher.Constraint("Equal", 2, 3),
    Sketcher.Constraint("Equal", 3, 4),
    Sketcher.Constraint("Equal", 4, 5),
    Sketcher.Constraint("Equal", 5, 6),
    Sketcher.Constraint("Equal", 6, 7),
    Sketcher.Constraint("Equal", 7, 8),
    Sketcher.Constraint("Equal", 8, 9),
    Sketcher.Constraint("Equal", 9, 10),
    Sketcher.Constraint("Equal", 10, 11),
    Sketcher.Constraint("Equal", 11, 12),
    Sketcher.Constraint("Equal", 12, 13),
    Sketcher.Constraint("Equal", 13, 14),
    Sketcher.Constraint("Equal", 14, 15),
    Sketcher.Constraint("Equal", 15, 16),
    Sketcher.Constraint("Equal", 16, 17),
    Sketcher.Constraint("Equal", 17, 18),
    Sketcher.Constraint("Equal", 18, 19),
    Sketcher.Constraint("Equal", 19, 20),
    Sketcher.Constraint("Equal", 20, 21),
    Sketcher.Constraint("Equal", 21, 22),
    Sketcher.Constraint("Equal", 22, 23),
    Sketcher.Constraint("Equal", 23, 24),
    Sketcher.Constraint("Equal", 24, 25),
    Sketcher.Constraint("Equal", 25, 26),
    Sketcher.Constraint("Equal", 26, 27),
    Sketcher.Constraint("Equal", 27, 28),
    Sketcher.Constraint("Equal", 28, 29),
    Sketcher.Constraint("Equal", 29, 30),
    Sketcher.Constraint("Equal", 30, 31),
    Sketcher.Constraint("Equal", 31, 32),
    Sketcher.Constraint("Equal", 32, 33),
    Sketcher.Constraint("Equal", 33, 34),
    Sketcher.Constraint("Equal", 34, 35),
    Sketcher.Constraint("Equal", 35, 36),
    Sketcher.Constraint("Equal", 36, 37),
    Sketcher.Constraint("Equal", 37, 38),
    Sketcher.Constraint("Equal", 38, 39),
    Sketcher.Constraint("Equal", 39, 40),
    Sketcher.Constraint("Equal", 40, 41),
    Sketcher.Constraint("Equal", 41, 42),
    Sketcher.Constraint("Equal", 42, 43),
    Sketcher.Constraint("Equal", 43, 44),
    Sketcher.Constraint("Equal", 44, 45),
    Sketcher.Constraint("Equal", 45, 46),
    Sketcher.Constraint("Equal", 46, 47),
    Sketcher.Constraint("Vertical", 0, 3, 1, 3),
    Sketcher.Constraint("Vertical", 1, 3, 2, 3),
    Sketcher.Constraint("Vertical", 2, 3, 3, 3),
    Sketcher.Constraint("Vertical", 3, 3, 4, 3),
    Sketcher.Constraint("Vertical", 4, 3, 5, 3),
    Sketcher.Constraint("Vertical", 5, 3, 6, 3),
    Sketcher.Constraint("Vertical", 6, 3, 7, 3),
    Sketcher.Constraint("Vertical", 7, 3, 8, 3),
    Sketcher.Constraint("Vertical", 8, 3, 9, 3),
    Sketcher.Constraint("Vertical", 9, 3, 10, 3),
    Sketcher.Constraint("Vertical", 10, 3, 11, 3),
    Sketcher.Constraint("Vertical", 11, 3, 12, 3),
    Sketcher.Constraint("Vertical", 12, 3, 13, 3),
    Sketcher.Constraint("Vertical", 13, 3, 14, 3),
    Sketcher.Constraint("Vertical", 14, 3, 15, 3),
    Sketcher.Constraint("Vertical", 15, 3, 16, 3),
    Sketcher.Constraint("Vertical", 16, 3, 17, 3),
    Sketcher.Constraint("Vertical", 17, 3, 18, 3),
    Sketcher.Constraint("Vertical", 18, 3, 19, 3),
    Sketcher.Constraint("Vertical", 19, 3, 20, 3),
    Sketcher.Constraint("Vertical", 20, 3, 21, 3),
    Sketcher.Constraint("Vertical", 21, 3, 22, 3),
    Sketcher.Constraint("Vertical", 22, 3, 23, 3),
    Sketcher.Constraint("Vertical", 23, 3, 24, 3),
    Sketcher.Constraint("Vertical", 24, 3, 25, 3),
    Sketcher.Constraint("Vertical", 25, 3, 26, 3),
    Sketcher.Constraint("Vertical", 26, 3, 27, 3),
    Sketcher.Constraint("Vertical", 27, 3, 28, 3),
    Sketcher.Constraint("Vertical", 28, 3, 29, 3),
    Sketcher.Constraint("Vertical", 29, 3, 30, 3),
    Sketcher.Constraint("Vertical", 30, 3, 31, 3),
    Sketcher.Constraint("Vertical", 31, 3, 32, 3),
    Sketcher.Constraint("Vertical", 32, 3, 33, 3),
    Sketcher.Constraint("Vertical", 33, 3, 34, 3),
    Sketcher.Constraint("Vertical", 34, 3, 35, 3),
    Sketcher.Constraint("Vertical", 35, 3, 36, 3),
    Sketcher.Constraint("Vertical", 36, 3, 37, 3),
    Sketcher.Constraint("Vertical", 37, 3, 38, 3),
    Sketcher.Constraint("Vertical", 38, 3, 39, 3),
    Sketcher.Constraint("Vertical", 39, 3, 40, 3),
    Sketcher.Constraint("Vertical", 40, 3, 41, 3),
    Sketcher.Constraint("Vertical", 41, 3, 42, 3),
    Sketcher.Constraint("Vertical", 42, 3, 43, 3),
    Sketcher.Constraint("Vertical", 43, 3, 44, 3),
    Sketcher.Constraint("Vertical", 44, 3, 45, 3),
    Sketcher.Constraint("Vertical", 45, 3, 46, 3),
    Sketcher.Constraint("Vertical", 46, 3, 47, 3),
    Sketcher.Constraint("Diameter", 0, Q("0.375 in")),
    Sketcher.Constraint("DistanceY", 1, 3, 0, 3, Q("1 in")),
    Sketcher.Constraint("DistanceY", 2, 3, 1, 3, Q("1 in")),
    Sketcher.Constraint("DistanceY", 3, 3, 2, 3, Q("1 in")),
    Sketcher.Constraint("DistanceY", 4, 3, 3, 3, Q("1 in")),
    Sketcher.Constraint("DistanceY", 5, 3, 4, 3, Q("1 in")),
    Sketcher.Constraint("DistanceY", 6, 3, 5, 3, Q("1 in")),
    Sketcher.Constraint("DistanceY", 7, 3, 6, 3, Q("1 in")),
    Sketcher.Constraint("DistanceY", 8, 3, 7, 3, Q("1 in")),
    Sketcher.Constraint("DistanceY", 9, 3, 8, 3, Q("1 in")),
    Sketcher.Constraint("DistanceY", 10, 3, 9, 3, Q("1 in")),
    Sketcher.Constraint("DistanceY", 11, 3, 10, 3, Q("1 in")),
    Sketcher.Constraint("DistanceY", 12, 3, 11, 3, Q("1 in")),
    Sketcher.Constraint("DistanceY", 13, 3, 12, 3, Q("1 in")),
    Sketcher.Constraint("DistanceY", 14, 3, 13, 3, Q("1 in")),
    Sketcher.Constraint("DistanceY", 15, 3, 14, 3, Q("1 in")),
    Sketcher.Constraint("DistanceY", 16, 3, 15, 3, Q("1 in")),
    Sketcher.Constraint("DistanceY", 17, 3, 16, 3, Q("1 in")),
    Sketcher.Constraint("DistanceY", 18, 3, 17, 3, Q("1 in")),
    Sketcher.Constraint("DistanceY", 19, 3, 18, 3, Q("1 in")),
    Sketcher.Constraint("DistanceY", 20, 3, 19, 3, Q("1 in")),
    Sketcher.Constraint("DistanceY", 21, 3, 20, 3, Q("1 in")),
    Sketcher.Constraint("DistanceY", 22, 3, 21, 3, Q("1 in")),
    Sketcher.Constraint("DistanceY", 23, 3, 22, 3, Q("1 in")),
    Sketcher.Constraint("DistanceY", 24, 3, 23, 3, Q("1 in")),
    Sketcher.Constraint("DistanceY", 25, 3, 24, 3, Q("1 in")),
    Sketcher.Constraint("DistanceY", 26, 3, 25, 3, Q("1 in")),
    Sketcher.Constraint("DistanceY", 27, 3, 26, 3, Q("1 in")),
    Sketcher.Constraint("DistanceY", 28, 3, 27, 3, Q("1 in")),
    Sketcher.Constraint("DistanceY", 29, 3, 28, 3, Q("1 in")),
    Sketcher.Constraint("DistanceY", 30, 3, 29, 3, Q("1 in")),
    Sketcher.Constraint("DistanceY", 31, 3, 30, 3, Q("1 in")),
    Sketcher.Constraint("DistanceY", 32, 3, 31, 3, Q("1 in")),
    Sketcher.Constraint("DistanceY", 33, 3, 32, 3, Q("1 in")),
    Sketcher.Constraint("DistanceY", 34, 3, 33, 3, Q("1 in")),
    Sketcher.Constraint("DistanceY", 35, 3, 34, 3, Q("1 in")),
    Sketcher.Constraint("DistanceY", 36, 3, 35, 3, Q("1 in")),
    Sketcher.Constraint("DistanceY", 37, 3, 36, 3, Q("1 in")),
    Sketcher.Constraint("DistanceY", 38, 3, 37, 3, Q("1 in")),
    Sketcher.Constraint("DistanceY", 39, 3, 38, 3, Q("1 in")),
    Sketcher.Constraint("DistanceY", 40, 3, 39, 3, Q("1 in")),
    Sketcher.Constraint("DistanceY", 41, 3, 40, 3, Q("1 in")),
    Sketcher.Constraint("DistanceY", 42, 3, 41, 3, Q("1 in")),
    Sketcher.Constraint("DistanceY", 43, 3, 42, 3, Q("1 in")),
    Sketcher.Constraint("DistanceY", 44, 3, 43, 3, Q("1 in")),
    Sketcher.Constraint("DistanceY", 45, 3, 44, 3, Q("1 in")),
    Sketcher.Constraint("DistanceY", 46, 3, 45, 3, Q("1 in")),
    Sketcher.Constraint("DistanceY", 47, 3, 46, 3, Q("1 in")),
    Sketcher.Constraint("DistanceY", -1, 1, 0, 3, Q("47.5 in")),
    Sketcher.Constraint("DistanceX", -1, 1, 0, 3, Q("0.6875 in")),
])
sketch3.setExpression("Constraints[94]", "Params.sketch3_diameter")
pocket2 = doc.addObject("PartDesign::Pocket", "Pocket001")
body.addObject(pocket2)
pocket2.Profile = sketch3
pocket2.setExpression("Length", "Params.pocket2_length")
doc.recompute()

fillet = doc.addObject("PartDesign::Fillet", "Fillet")
body.addObject(fillet)
fillet.Base = (pocket2, edges_at(pocket2, [(0, 609.6, 0)]))
fillet.setExpression("Radius", "Params.fillet_radius")
doc.recompute()

fillet2 = doc.addObject("PartDesign::Fillet", "Fillet001")
body.addObject(fillet2)
fillet2.Base = (fillet, edges_at(fillet, [(1.27, 609.6, -1.27)]))
fillet2.setExpression("Radius", "Params.fillet2_radius")

# Sketch on XZ plane
sketch4 = doc.addObject("Sketcher::SketchObject", "Sketch003")
body.addObject(sketch4)
sketch4.AttachmentSupport = (doc.XZ_Plane, [""])
sketch4.MapMode = "FlatFace"
sketch4.AttachmentOffset = App.Placement(App.Vector(0, 0, -48 * 25.4), App.Rotation())
sketch4.addGeometry([
    Part.LineSegment(App.Vector(0, -31.8, 0), App.Vector(0, -3.2, 0)),  # 0
    Part.ArcOfCircle(Part.Circle(App.Vector(3.2, -3.2, 0), App.Vector(0, 0, 1), 3.2), math.radians(90), math.radians(180)),  # 1
    Part.LineSegment(App.Vector(3.2, 0, 0), App.Vector(31.8, 0, 0)),  # 2
    Part.LineSegment(App.Vector(31.8, 0, 0), App.Vector(31.8, -1.3, 0)),  # 3
    Part.LineSegment(App.Vector(31.8, -1.3, 0), App.Vector(2.9, -1.3, 0)),  # 4
    Part.ArcOfCircle(Part.Circle(App.Vector(2.9, -2.9, 0), App.Vector(0, 0, 1), 1.6), math.radians(90), math.radians(180)),  # 5
    Part.LineSegment(App.Vector(1.3, -2.9, 0), App.Vector(1.3, -31.8, 0)),  # 6
    Part.LineSegment(App.Vector(1.3, -31.8, 0), App.Vector(0, -31.8, 0)),  # 7
], False)
sketch4.addConstraint([
    Sketcher.Constraint("Tangent", 0, 2, 1, 2),
    Sketcher.Constraint("Tangent", 1, 1, 2, 1),
    Sketcher.Constraint("Coincident", 2, 2, 3, 1),
    Sketcher.Constraint("Coincident", 3, 2, 4, 1),
    Sketcher.Constraint("Tangent", 4, 2, 5, 1),
    Sketcher.Constraint("Tangent", 5, 2, 6, 1),
    Sketcher.Constraint("Coincident", 6, 2, 7, 1),
    Sketcher.Constraint("Coincident", 7, 2, 0, 1),
    Sketcher.Constraint("Vertical", 0),
    Sketcher.Constraint("Horizontal", 2),
    Sketcher.Constraint("Vertical", 3),
    Sketcher.Constraint("Horizontal", 4),
    Sketcher.Constraint("Vertical", 6),
    Sketcher.Constraint("Horizontal", 7),
    Sketcher.Constraint("PointOnObject", 0, 2, -2),
    Sketcher.Constraint("PointOnObject", 1, 1, -1),
    Sketcher.Constraint("Equal", 2, 0),
    Sketcher.Constraint("Equal", 7, 3),
    Sketcher.Constraint("Radius", 1, Q("0.125 in")),
    Sketcher.Constraint("Radius", 5, Q("0.0625 in")),
    Sketcher.Constraint("DistanceX", 7, 2, 7, 1, Q("0.05 in")),
    Sketcher.Constraint("DistanceY", 6, 2, 4, 2, Q("1.2 in")),
])
sketch4.setExpression("Constraints[18]", "Params.sketch4_radius")
sketch4.setExpression("Constraints[19]", "Params.sketch4_radius2")
sketch4.setExpression("Constraints[20]", "Params.sketch4_width")
pocket3 = doc.addObject("PartDesign::Pocket", "Pocket002")
body.addObject(pocket3)
pocket3.Profile = sketch4
pocket3.setExpression("Length", "Params.pocket3_length")
pocket3.Reversed = True

doc.recompute()
